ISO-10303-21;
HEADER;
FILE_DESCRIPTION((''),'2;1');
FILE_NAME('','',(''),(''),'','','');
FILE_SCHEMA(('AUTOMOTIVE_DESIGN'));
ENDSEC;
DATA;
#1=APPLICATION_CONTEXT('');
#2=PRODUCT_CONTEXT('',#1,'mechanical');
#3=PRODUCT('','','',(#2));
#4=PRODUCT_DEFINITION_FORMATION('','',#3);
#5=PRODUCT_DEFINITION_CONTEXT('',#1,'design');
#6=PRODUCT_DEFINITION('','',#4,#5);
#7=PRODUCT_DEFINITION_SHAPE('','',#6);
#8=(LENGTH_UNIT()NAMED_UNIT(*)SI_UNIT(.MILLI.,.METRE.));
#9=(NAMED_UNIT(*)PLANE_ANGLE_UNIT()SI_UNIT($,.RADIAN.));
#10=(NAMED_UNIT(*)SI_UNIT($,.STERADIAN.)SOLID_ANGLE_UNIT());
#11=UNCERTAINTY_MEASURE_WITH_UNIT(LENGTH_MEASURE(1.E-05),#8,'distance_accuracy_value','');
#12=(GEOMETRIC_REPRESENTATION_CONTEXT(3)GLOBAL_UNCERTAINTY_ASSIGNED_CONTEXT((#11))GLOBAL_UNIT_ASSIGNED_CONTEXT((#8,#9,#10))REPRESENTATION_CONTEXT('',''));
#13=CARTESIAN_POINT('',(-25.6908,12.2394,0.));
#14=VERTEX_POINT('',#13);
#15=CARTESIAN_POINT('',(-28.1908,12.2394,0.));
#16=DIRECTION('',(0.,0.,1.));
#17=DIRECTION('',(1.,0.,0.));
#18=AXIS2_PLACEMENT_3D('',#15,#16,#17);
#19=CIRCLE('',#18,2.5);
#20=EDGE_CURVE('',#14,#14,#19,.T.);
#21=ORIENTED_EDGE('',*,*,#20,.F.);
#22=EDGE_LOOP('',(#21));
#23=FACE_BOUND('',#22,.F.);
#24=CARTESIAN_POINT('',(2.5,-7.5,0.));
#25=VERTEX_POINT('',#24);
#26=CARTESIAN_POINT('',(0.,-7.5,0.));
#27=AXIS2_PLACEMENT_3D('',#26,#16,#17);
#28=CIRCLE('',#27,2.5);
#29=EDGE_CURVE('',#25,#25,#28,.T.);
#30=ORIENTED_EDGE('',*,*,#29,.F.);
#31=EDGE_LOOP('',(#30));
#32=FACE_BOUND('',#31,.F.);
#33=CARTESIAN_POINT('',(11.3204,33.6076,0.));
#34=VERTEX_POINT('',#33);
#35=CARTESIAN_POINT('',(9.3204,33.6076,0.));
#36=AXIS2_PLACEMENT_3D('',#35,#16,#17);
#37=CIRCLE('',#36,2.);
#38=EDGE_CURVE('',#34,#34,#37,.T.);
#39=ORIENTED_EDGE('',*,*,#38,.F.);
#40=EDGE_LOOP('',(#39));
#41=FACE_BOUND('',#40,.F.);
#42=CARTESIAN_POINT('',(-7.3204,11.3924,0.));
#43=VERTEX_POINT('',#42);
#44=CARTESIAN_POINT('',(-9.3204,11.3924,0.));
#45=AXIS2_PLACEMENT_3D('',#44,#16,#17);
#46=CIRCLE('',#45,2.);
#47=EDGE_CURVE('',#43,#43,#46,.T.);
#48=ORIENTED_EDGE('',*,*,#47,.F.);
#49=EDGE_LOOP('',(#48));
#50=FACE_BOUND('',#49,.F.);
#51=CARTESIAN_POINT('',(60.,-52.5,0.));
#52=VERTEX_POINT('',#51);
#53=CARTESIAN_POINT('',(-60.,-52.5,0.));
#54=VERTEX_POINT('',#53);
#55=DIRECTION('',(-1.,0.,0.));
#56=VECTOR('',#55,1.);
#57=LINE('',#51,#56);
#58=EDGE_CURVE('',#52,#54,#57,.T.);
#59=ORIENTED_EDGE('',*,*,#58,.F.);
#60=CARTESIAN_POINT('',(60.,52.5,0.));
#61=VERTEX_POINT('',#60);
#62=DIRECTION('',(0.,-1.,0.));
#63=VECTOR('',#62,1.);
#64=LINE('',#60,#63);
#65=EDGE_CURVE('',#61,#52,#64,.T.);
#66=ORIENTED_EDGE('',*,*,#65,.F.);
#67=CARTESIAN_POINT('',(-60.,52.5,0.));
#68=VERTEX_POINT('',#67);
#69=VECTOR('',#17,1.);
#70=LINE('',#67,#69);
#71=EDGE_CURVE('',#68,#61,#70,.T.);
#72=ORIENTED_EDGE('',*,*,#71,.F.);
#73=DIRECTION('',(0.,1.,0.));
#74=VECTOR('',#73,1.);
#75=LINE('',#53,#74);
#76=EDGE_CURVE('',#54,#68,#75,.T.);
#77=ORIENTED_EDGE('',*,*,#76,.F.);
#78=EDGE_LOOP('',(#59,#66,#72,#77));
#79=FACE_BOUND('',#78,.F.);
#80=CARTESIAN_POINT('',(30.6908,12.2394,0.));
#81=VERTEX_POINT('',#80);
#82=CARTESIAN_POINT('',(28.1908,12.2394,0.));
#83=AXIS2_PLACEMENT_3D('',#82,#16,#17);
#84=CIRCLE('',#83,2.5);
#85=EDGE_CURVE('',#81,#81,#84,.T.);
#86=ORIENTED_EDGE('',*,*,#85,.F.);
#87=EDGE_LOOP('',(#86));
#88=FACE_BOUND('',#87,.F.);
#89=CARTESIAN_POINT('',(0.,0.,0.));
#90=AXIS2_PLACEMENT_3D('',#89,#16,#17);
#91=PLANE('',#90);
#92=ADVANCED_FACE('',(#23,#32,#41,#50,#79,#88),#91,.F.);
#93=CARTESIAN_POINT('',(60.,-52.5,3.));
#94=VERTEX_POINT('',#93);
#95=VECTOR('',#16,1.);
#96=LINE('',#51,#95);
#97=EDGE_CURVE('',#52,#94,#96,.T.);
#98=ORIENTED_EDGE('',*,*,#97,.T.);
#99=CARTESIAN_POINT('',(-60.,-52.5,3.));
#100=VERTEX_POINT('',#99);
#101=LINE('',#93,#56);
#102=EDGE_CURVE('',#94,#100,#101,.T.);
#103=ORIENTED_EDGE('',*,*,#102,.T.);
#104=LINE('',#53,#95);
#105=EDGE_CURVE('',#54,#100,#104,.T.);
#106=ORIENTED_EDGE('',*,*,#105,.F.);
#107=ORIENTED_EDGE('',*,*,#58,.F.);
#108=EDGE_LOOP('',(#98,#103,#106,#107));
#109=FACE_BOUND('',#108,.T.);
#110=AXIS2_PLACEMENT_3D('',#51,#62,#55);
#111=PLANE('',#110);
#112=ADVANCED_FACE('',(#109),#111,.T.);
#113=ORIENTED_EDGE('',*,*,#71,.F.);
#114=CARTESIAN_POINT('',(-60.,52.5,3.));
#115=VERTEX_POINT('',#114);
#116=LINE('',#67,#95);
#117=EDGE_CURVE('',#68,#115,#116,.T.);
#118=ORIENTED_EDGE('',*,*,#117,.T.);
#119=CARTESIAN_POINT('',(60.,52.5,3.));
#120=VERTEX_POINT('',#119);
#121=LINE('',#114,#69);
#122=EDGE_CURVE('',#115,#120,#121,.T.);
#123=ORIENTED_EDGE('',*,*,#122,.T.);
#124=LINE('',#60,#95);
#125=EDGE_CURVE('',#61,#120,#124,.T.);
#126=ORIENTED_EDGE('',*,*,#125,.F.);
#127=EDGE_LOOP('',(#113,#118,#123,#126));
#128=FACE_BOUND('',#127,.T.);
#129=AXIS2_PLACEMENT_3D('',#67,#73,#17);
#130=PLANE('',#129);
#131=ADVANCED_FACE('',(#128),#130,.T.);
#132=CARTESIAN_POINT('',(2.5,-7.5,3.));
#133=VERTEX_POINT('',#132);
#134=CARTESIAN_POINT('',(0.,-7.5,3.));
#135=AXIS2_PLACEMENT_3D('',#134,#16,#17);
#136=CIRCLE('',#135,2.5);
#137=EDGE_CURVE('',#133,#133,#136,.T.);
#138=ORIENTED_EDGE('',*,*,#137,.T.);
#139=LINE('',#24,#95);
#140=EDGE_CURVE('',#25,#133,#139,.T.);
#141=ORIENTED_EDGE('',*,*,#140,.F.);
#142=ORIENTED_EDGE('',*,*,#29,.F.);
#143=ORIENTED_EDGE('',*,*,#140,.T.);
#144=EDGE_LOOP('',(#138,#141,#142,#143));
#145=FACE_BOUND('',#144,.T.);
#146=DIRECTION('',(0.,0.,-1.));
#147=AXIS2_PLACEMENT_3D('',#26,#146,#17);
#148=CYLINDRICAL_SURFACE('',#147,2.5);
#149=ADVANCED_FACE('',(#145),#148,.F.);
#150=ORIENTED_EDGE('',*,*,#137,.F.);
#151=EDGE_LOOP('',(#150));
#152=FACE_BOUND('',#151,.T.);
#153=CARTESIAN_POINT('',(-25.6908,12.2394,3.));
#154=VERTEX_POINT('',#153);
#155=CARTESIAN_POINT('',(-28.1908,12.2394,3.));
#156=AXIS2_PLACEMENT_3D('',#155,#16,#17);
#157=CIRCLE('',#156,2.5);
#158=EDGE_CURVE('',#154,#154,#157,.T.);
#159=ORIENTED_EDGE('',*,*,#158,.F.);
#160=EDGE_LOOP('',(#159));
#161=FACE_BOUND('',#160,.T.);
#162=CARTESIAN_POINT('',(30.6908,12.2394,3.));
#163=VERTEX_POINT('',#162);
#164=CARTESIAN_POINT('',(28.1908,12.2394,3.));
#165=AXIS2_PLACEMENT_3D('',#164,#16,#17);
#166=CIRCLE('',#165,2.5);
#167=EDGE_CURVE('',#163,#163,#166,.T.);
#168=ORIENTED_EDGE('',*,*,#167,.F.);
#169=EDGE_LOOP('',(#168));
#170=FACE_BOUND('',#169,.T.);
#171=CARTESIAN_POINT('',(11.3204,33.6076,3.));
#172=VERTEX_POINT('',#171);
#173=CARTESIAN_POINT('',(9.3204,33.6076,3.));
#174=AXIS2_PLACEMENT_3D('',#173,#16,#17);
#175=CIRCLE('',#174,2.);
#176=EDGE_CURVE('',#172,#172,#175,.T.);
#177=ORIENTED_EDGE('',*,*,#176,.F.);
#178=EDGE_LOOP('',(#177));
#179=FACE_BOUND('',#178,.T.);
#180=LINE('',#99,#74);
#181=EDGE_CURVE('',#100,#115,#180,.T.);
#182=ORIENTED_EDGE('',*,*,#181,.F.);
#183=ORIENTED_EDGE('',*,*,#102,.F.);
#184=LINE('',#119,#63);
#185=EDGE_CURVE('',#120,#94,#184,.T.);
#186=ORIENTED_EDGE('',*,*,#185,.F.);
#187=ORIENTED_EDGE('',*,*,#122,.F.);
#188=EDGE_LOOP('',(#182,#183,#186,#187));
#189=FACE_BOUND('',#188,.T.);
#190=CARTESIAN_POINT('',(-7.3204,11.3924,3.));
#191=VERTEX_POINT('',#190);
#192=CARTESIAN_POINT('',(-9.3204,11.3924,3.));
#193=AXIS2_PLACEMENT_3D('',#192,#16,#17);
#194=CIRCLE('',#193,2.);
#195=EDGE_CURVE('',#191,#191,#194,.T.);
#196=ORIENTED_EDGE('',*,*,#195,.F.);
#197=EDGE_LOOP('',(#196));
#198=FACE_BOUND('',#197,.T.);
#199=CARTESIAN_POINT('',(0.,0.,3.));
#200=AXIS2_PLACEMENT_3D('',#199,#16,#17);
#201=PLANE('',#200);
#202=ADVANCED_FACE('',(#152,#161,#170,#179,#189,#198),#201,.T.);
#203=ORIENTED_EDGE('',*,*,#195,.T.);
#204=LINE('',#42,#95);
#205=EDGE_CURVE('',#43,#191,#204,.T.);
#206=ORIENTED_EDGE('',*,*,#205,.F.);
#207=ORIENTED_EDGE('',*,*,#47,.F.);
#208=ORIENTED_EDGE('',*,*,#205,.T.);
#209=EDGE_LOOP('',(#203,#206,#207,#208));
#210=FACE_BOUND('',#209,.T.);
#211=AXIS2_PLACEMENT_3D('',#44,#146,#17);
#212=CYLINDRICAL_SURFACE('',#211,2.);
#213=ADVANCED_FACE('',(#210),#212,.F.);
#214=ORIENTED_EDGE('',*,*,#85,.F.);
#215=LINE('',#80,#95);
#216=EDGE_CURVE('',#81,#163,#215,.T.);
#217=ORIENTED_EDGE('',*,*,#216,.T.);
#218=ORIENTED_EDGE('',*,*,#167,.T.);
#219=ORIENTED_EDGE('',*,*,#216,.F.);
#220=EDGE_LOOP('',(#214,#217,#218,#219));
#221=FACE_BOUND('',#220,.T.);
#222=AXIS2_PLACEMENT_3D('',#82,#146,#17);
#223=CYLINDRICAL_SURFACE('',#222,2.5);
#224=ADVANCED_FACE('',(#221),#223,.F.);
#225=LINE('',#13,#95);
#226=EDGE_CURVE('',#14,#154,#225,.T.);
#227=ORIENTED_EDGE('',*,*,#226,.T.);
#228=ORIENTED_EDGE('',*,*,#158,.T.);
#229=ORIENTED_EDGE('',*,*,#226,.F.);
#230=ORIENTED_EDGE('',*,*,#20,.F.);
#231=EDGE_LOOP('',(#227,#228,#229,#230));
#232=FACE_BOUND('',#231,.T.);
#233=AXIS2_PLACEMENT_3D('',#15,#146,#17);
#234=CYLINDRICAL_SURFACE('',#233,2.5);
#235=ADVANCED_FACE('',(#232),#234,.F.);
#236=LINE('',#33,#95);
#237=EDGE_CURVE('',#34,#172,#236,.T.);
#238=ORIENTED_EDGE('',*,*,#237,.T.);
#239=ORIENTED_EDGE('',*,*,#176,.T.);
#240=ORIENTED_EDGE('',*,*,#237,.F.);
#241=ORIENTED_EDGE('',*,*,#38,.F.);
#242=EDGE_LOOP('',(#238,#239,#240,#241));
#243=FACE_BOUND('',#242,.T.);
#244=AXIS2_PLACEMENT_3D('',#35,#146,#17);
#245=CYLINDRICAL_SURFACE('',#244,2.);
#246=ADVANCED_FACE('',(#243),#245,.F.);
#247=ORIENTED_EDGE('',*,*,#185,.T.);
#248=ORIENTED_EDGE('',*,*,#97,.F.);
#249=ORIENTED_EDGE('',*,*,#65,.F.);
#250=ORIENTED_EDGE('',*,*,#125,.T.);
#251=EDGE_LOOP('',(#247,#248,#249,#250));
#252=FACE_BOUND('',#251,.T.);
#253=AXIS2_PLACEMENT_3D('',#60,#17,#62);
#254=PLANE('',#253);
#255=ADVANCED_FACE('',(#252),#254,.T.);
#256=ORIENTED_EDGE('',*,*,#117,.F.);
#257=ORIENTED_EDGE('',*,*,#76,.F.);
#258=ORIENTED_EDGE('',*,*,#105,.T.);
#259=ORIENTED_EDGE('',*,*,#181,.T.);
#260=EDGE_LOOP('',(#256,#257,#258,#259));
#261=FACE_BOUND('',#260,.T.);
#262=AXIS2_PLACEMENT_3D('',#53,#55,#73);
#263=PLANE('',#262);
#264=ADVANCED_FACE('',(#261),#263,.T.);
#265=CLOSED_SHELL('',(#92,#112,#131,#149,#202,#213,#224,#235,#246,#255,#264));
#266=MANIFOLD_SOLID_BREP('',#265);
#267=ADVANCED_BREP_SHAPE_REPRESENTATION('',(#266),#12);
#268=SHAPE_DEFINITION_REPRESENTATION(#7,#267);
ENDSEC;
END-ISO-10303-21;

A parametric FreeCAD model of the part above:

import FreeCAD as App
import Part
import Sketcher


def add_polygon(sketch, points):
    """Adds a closed chain of lines whose ends are joined by coincident constraints."""
    first, n = sketch.GeometryCount, len(points)
    for a, b in zip(points, points[1:] + points[:1]):
        sketch.addGeometry(Part.LineSegment(App.Vector(*a, 0), App.Vector(*b, 0)), False)
    for i in range(n):
        sketch.addConstraint(Sketcher.Constraint("Coincident", first + i, 2, first + (i + 1) % n, 1))

doc = App.newDocument("Part")
body = doc.addObject("PartDesign::Body", "Body")

sketch1 = doc.addObject("Sketcher::SketchObject", "Sketch")
body.addObject(sketch1)
sketch1.AttachmentSupport = (doc.XY_Plane, [""])
sketch1.MapMode = "FlatFace"
add_polygon(sketch1, [(60, 52.5), (-60, 52.5), (-60, -52.5), (60, -52.5)])
sketch1.addGeometry(Part.Circle(App.Vector(0, -7.5, 0), App.Vector(0, 0, 1), 2.5), False)
sketch1.addGeometry(Part.Circle(App.Vector(-28.2, 12.2, 0), App.Vector(0, 0, 1), 2.5), False)
sketch1.addGeometry(Part.Circle(App.Vector(-9.3, 11.4, 0), App.Vector(0, 0, 1), 2), False)
sketch1.addGeometry(Part.Circle(App.Vector(28.2, 12.2, 0), App.Vector(0, 0, 1), 2.5), False)
sketch1.addGeometry(Part.Circle(App.Vector(9.3, 33.6, 0), App.Vector(0, 0, 1), 2), False)
sketch1.addConstraint([
    Sketcher.Constraint("Horizontal", 0),
    Sketcher.Constraint("Vertical", 1),
    Sketcher.Constraint("Horizontal", 2),
    Sketcher.Constraint("Vertical", 3),
    Sketcher.Constraint("Equal", 4, 5),
    Sketcher.Constraint("Equal", 5, 7),
    Sketcher.Constraint("Equal", 6, 8),
    Sketcher.Constraint("Symmetric", 0, 2, 2, 2, -1, 1),
    Sketcher.Constraint("Symmetric", 5, 3, 7, 3, -2),
    Sketcher.Constraint("PointOnObject", 4, 3, -2),
    Sketcher.Constraint("Diameter", 4, 5.0),
    Sketcher.Constraint("Diameter", 6, 4.0),
    Sketcher.Constraint("DistanceY", 1, 2, 1, 1, 105.0),
    Sketcher.Constraint("DistanceX", 0, 2, 0, 1, 120.0),
    Sketcher.Constraint("DistanceY", 4, 3, 0, 2, 60.0),
    Sketcher.Constraint("DistanceY", 6, 3, 5, 3, 0.847),
    Sketcher.Constraint("DistanceX", 5, 3, -1, 1, 28.1908),
    Sketcher.Constraint("DistanceY", -1, 1, 5, 3, 12.2394),
    Sketcher.Constraint("DistanceX", 6, 3, -1, 1, 9.3204),
    Sketcher.Constraint("DistanceX", -1, 1, 8, 3, 9.3204),
    Sketcher.Constraint("DistanceY", -1, 1, 8, 3, 33.6076),
])
pad1 = doc.addObject("PartDesign::Pad", "Pad")
body.addObject(pad1)
pad1.Profile = sketch1
pad1.Length = 3

doc.recompute()
